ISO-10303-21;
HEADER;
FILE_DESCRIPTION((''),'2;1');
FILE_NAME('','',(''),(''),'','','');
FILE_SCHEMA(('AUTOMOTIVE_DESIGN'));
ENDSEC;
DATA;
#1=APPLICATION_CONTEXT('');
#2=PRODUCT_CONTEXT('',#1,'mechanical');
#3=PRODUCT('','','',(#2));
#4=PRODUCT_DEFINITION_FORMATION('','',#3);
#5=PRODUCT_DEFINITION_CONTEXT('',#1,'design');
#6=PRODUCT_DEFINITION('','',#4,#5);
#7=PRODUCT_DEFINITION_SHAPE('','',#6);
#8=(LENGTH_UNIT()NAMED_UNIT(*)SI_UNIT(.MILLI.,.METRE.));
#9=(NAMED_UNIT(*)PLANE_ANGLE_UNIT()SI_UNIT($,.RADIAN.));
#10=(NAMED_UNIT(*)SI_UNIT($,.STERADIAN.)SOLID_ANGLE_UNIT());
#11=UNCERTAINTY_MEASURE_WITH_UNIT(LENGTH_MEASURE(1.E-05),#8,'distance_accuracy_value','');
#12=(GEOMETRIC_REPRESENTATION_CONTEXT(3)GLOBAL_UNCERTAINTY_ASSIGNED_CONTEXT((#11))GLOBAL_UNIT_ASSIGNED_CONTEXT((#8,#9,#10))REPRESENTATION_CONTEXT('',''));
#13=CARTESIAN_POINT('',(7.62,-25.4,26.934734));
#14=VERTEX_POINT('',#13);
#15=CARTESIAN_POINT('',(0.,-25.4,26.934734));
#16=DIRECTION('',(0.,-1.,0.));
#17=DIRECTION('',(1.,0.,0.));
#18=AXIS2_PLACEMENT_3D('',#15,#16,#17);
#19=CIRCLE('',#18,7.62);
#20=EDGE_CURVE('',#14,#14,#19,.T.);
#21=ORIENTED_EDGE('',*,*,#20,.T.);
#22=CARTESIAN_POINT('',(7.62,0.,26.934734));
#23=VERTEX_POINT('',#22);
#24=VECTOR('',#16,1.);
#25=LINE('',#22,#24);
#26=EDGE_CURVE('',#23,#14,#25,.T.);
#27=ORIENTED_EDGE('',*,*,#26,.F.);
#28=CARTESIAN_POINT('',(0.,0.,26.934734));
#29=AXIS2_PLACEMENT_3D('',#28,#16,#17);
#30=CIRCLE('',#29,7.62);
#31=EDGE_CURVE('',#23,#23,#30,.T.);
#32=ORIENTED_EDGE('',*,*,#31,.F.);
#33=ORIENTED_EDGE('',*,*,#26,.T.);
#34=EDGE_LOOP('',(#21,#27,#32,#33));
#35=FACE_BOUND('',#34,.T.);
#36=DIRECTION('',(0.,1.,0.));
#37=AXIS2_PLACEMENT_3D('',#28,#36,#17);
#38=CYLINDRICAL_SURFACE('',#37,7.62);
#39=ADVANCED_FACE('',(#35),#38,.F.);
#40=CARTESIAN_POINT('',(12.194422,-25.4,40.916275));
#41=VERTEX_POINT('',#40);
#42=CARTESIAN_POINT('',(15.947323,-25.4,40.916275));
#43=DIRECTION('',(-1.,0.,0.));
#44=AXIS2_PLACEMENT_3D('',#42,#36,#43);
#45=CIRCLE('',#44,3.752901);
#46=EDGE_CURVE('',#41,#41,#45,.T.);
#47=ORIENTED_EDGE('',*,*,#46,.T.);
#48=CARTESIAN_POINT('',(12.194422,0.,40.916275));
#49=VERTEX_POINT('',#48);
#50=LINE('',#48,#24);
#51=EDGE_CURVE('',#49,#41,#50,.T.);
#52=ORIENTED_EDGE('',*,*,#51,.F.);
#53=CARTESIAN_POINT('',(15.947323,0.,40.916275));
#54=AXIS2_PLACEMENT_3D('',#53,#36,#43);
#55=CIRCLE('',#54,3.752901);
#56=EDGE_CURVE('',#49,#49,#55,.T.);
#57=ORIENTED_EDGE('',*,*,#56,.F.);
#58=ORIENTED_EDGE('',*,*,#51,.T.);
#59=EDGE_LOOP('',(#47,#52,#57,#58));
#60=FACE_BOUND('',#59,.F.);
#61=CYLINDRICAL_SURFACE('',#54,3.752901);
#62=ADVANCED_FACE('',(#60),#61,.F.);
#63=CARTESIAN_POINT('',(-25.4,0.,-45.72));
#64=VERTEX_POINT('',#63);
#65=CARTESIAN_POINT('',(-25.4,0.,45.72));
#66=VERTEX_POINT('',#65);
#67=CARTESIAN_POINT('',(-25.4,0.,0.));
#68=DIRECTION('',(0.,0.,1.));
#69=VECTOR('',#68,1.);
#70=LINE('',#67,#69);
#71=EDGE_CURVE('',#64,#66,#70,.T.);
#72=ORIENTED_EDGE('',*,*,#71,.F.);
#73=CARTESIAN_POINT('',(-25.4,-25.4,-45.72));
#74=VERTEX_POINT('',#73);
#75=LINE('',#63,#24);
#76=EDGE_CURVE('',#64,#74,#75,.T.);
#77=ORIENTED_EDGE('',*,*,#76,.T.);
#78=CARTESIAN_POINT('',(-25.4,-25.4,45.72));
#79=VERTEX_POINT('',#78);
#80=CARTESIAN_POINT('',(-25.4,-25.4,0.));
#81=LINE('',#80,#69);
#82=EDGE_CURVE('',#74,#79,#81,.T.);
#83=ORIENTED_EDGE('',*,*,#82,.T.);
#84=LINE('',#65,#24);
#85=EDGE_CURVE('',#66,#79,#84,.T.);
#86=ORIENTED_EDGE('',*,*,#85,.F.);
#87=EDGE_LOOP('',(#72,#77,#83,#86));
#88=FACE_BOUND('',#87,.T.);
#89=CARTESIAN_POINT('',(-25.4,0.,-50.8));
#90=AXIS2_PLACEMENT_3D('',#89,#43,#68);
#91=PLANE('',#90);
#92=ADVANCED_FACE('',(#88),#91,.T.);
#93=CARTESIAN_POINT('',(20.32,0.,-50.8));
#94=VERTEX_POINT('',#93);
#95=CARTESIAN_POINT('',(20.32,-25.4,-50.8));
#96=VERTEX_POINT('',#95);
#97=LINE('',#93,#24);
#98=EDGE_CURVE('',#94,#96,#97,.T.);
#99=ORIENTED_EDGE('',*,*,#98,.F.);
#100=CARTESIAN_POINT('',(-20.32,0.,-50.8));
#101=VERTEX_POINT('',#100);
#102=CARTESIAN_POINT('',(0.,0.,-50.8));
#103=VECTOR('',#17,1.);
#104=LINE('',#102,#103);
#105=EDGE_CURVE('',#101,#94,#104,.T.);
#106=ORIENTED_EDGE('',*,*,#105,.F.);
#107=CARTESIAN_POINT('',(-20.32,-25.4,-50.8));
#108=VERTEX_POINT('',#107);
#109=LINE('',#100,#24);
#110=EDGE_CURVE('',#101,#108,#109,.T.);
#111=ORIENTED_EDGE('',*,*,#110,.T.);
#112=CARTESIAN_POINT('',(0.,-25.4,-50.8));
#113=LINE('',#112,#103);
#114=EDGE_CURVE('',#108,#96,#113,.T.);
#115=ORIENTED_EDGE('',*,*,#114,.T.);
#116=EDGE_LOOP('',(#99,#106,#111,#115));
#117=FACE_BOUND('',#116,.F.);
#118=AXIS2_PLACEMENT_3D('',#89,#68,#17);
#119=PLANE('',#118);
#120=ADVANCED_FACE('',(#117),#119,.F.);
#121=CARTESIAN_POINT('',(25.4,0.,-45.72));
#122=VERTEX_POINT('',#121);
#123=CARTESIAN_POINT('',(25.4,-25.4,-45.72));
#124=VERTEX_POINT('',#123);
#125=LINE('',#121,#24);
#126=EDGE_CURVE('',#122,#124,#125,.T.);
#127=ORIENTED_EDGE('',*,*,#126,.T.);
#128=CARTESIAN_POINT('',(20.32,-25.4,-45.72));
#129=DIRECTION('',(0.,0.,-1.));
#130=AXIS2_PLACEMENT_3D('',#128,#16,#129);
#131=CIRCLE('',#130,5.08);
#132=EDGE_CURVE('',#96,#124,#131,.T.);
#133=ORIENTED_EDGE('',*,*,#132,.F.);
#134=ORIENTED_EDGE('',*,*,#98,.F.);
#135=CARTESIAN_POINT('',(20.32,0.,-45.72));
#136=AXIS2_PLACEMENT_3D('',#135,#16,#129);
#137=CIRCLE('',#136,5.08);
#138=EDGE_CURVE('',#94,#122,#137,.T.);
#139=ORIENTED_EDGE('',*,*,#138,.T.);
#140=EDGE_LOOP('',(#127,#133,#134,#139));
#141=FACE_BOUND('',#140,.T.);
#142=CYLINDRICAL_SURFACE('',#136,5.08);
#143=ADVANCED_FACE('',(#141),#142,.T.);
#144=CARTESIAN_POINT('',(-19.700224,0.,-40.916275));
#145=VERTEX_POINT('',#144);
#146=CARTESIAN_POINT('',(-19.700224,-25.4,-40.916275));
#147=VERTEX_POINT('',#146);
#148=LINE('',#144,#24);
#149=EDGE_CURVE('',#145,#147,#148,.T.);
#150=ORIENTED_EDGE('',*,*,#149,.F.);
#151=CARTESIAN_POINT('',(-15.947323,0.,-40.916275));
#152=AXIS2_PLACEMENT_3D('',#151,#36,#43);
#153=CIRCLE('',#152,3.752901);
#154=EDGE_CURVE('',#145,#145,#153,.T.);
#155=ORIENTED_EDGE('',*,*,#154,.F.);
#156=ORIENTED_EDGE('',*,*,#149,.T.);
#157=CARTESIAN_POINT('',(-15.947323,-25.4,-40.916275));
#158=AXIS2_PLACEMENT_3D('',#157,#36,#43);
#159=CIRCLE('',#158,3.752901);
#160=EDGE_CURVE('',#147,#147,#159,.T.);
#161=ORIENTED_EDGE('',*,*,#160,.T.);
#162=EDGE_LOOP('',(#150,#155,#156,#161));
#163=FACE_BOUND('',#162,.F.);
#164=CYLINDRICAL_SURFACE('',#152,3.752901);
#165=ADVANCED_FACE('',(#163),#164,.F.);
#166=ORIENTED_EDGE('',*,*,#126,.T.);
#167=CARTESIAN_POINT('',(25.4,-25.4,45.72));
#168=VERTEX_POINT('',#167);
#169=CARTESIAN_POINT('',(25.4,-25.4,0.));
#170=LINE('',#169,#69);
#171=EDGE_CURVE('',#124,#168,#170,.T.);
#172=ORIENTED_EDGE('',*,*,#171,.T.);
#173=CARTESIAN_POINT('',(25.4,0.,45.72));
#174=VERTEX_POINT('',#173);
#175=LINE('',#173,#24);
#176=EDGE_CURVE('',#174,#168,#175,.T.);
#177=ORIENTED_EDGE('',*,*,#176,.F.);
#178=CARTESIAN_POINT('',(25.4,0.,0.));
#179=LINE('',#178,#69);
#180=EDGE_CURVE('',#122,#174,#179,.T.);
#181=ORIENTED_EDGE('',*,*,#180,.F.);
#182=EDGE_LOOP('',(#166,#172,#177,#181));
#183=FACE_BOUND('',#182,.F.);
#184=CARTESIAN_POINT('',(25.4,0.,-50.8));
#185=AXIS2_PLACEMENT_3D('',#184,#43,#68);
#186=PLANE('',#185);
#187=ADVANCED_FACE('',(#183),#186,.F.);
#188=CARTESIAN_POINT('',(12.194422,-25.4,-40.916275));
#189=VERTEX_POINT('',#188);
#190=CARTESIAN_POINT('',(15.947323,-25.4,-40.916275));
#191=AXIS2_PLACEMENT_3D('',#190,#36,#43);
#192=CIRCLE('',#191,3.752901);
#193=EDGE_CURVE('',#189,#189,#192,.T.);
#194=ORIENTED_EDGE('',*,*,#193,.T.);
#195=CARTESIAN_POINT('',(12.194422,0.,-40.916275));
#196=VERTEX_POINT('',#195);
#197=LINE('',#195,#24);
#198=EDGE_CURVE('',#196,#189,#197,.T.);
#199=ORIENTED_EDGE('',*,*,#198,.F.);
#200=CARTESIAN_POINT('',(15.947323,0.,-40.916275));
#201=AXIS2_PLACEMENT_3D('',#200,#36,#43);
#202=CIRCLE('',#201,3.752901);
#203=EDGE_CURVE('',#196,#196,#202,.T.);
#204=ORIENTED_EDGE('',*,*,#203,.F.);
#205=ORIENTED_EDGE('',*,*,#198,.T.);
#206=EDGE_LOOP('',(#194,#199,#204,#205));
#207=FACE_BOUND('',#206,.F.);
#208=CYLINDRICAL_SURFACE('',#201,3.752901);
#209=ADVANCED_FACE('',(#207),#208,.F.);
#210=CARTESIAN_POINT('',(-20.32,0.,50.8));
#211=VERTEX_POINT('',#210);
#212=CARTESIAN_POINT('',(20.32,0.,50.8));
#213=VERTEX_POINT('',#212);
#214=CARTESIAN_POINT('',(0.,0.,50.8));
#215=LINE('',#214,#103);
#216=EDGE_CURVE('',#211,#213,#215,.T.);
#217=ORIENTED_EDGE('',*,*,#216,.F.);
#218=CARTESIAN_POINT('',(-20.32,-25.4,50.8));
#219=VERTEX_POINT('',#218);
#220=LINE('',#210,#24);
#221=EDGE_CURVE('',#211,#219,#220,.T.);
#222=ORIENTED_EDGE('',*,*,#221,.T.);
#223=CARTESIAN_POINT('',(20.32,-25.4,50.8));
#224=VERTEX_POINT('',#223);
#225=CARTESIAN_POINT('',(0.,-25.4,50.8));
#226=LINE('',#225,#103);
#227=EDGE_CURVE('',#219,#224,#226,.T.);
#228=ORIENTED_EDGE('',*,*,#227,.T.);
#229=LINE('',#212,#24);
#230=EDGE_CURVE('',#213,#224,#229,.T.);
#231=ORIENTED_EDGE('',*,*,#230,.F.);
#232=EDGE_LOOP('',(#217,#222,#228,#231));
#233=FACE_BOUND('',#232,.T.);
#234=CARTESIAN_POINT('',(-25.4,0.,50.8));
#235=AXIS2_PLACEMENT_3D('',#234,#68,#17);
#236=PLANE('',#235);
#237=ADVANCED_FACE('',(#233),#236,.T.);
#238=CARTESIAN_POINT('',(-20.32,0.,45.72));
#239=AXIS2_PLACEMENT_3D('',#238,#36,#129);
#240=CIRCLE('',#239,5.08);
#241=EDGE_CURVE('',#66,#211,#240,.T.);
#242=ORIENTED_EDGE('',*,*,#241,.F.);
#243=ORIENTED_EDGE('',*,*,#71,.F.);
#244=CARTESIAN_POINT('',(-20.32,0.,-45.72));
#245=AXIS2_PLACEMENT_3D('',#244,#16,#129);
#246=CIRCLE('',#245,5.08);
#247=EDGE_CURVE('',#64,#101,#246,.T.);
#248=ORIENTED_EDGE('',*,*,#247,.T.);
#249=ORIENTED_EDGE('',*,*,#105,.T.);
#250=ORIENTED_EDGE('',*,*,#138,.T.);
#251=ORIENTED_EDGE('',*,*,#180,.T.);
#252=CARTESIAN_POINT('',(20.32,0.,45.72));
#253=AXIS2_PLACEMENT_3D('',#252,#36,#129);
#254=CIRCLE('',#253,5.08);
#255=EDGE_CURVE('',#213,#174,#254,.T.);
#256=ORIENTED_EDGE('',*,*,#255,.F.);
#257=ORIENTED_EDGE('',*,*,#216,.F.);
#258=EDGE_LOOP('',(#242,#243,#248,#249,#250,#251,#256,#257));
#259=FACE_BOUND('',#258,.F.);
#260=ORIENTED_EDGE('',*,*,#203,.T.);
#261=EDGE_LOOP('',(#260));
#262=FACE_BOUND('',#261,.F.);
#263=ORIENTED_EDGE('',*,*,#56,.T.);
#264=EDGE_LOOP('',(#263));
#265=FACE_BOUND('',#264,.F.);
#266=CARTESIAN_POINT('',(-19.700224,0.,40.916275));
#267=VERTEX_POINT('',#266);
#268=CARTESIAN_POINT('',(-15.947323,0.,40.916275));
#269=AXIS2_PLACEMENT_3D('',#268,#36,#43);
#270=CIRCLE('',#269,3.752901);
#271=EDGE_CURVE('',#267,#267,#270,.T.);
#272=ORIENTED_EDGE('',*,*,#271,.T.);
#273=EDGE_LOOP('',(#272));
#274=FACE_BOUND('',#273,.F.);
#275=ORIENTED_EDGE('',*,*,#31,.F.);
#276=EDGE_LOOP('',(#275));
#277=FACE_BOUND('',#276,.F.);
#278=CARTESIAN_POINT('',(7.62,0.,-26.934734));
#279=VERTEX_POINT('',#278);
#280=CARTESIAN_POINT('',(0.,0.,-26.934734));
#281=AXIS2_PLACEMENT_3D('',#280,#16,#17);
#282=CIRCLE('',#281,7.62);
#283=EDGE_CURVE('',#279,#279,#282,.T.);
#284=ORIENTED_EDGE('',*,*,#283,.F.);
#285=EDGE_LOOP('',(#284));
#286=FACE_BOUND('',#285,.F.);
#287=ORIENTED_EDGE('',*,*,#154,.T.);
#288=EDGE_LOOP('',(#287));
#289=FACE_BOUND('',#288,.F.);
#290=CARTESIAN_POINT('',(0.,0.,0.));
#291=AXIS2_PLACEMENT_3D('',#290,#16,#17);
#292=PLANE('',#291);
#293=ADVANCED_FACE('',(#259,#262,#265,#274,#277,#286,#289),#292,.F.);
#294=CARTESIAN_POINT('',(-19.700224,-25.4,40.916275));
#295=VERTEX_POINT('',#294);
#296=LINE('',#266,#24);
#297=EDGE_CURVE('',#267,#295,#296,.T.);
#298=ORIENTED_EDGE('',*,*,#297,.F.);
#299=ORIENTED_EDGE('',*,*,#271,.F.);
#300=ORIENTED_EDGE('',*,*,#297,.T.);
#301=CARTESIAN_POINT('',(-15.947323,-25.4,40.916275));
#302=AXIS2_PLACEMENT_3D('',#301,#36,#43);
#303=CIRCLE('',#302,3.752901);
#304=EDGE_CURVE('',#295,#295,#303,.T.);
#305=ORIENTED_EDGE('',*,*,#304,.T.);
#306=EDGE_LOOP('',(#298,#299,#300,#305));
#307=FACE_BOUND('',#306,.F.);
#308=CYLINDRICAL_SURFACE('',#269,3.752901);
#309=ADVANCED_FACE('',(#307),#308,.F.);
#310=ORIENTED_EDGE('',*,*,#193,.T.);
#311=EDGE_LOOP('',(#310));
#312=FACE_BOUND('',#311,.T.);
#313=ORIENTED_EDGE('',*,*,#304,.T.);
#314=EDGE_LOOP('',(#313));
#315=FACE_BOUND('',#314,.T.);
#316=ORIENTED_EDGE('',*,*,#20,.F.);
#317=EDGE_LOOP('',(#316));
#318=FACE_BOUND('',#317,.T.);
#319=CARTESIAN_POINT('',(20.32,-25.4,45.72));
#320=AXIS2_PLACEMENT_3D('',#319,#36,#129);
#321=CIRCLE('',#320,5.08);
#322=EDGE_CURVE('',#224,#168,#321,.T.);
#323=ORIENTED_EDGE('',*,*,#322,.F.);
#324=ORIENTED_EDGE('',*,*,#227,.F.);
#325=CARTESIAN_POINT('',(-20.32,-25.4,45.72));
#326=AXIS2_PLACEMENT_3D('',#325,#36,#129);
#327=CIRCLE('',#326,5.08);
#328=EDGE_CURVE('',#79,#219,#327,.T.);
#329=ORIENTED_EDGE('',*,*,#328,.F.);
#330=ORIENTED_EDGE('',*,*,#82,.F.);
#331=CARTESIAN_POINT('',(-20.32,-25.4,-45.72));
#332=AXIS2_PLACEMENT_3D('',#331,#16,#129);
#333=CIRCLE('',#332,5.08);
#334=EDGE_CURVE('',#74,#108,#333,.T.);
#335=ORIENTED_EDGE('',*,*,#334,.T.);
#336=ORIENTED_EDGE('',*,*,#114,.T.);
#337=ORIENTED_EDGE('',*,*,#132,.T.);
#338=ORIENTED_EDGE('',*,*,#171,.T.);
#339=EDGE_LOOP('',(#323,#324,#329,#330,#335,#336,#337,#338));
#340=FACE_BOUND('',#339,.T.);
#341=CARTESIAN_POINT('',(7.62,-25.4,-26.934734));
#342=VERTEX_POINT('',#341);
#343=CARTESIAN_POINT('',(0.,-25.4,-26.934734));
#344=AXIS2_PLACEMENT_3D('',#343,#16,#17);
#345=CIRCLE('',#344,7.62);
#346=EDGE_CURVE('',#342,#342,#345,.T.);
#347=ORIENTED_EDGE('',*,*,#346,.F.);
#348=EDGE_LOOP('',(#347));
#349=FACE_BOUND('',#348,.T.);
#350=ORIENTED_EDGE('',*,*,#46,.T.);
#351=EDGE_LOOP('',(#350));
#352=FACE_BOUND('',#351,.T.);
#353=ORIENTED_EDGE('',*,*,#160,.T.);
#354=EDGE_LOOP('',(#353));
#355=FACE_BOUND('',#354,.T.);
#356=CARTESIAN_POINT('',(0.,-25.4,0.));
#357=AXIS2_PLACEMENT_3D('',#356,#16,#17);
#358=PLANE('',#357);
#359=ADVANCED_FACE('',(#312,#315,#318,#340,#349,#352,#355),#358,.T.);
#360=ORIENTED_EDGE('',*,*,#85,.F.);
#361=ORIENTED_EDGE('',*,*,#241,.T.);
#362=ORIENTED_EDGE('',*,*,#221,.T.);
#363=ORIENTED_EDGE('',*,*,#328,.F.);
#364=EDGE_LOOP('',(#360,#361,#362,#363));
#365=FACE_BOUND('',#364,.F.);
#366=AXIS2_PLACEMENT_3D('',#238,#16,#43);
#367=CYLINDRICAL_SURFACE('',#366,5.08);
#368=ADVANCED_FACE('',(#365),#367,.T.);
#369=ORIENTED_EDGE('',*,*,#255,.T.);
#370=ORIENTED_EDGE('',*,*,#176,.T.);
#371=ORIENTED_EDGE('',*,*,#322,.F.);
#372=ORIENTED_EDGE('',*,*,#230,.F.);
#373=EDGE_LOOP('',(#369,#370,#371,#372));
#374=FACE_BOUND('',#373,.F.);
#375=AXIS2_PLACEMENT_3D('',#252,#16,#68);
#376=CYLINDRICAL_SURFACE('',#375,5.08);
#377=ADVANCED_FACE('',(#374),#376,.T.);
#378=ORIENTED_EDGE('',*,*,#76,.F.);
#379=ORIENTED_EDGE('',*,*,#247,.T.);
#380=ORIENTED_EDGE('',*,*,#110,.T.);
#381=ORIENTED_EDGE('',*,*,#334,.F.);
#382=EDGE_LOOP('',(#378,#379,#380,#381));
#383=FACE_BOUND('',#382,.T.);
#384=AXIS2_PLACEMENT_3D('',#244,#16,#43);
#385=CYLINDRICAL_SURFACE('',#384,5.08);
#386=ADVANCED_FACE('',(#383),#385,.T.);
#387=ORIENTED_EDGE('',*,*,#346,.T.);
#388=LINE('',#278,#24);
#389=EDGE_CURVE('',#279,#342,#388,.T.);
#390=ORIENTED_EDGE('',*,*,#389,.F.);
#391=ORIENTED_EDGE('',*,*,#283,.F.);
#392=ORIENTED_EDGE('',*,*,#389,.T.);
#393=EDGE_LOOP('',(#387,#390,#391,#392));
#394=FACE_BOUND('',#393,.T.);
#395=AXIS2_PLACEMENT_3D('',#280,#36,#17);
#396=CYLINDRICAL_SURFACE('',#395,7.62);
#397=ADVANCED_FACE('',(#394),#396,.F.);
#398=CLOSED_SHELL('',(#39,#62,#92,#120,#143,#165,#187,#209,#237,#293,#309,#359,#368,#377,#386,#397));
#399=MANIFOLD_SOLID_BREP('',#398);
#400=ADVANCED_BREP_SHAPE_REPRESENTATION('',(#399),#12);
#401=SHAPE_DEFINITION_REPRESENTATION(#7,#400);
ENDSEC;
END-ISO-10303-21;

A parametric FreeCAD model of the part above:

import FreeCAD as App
import Part
import Sketcher

V = App.Vector
Q = App.Units.Quantity


def edges_at(feature, points):
    """Names of the edges that pass closest to the given points."""
    edges = feature.Shape.Edges
    near = lambda p: min(range(len(edges)), key=lambda i: edges[i].distToShape(Part.Vertex(*p))[0])
    return sorted({f"Edge{near(p) + 1}" for p in points})

doc = App.newDocument("Part")
body = doc.addObject("PartDesign::Body", "Body")

# Sketch on XZ plane
sketch1 = body.newObject("Sketcher::SketchObject", "Sketch")
sketch1.AttachmentSupport = (doc.getObject("XZ_Plane"), [""])
sketch1.MapMode = "FlatFace"
sketch1.addGeometry([
    Part.LineSegment(V(-25, 51, 0), V(-25, -51, 0)),  # 0
    Part.LineSegment(V(-25, -51, 0), V(25, -51, 0)),  # 1
    Part.LineSegment(V(25, -51, 0), V(25, 51, 0)),  # 2
    Part.LineSegment(V(25, 51, 0), V(-25, 51, 0)),  # 3
    Part.Circle(V(0, -27, 0), V(0, 0, 1), 8),  # 4
    Part.Circle(V(0, 27, 0), V(0, 0, 1), 8),  # 5
], False)
sketch1.addConstraint([
    Sketcher.Constraint("Coincident", 0, 2, 1, 1),
    Sketcher.Constraint("Coincident", 1, 2, 2, 1),
    Sketcher.Constraint("Coincident", 2, 2, 3, 1),
    Sketcher.Constraint("Coincident", 3, 2, 0, 1),
    Sketcher.Constraint("Vertical", 0),
    Sketcher.Constraint("Horizontal", 1),
    Sketcher.Constraint("Vertical", 2),
    Sketcher.Constraint("Horizontal", 3),
    Sketcher.Constraint("Equal", 4, 5),
    Sketcher.Constraint("Symmetric", 4, 3, 5, 3, -1, 1),
    Sketcher.Constraint("Symmetric", 0, 2, 2, 2, -1, 1),
    Sketcher.Constraint("PointOnObject", 4, 3, -2),
    Sketcher.Constraint("Diameter", 4, Q("0.6 in")),
    Sketcher.Constraint("DistanceX", 1, 1, 1, 2, Q("2 in")),
    Sketcher.Constraint("DistanceY", 0, 2, 0, 1, Q("4 in")),
    Sketcher.Constraint("DistanceY", 4, 3, -1, 1, Q("26.934734 mm")),
])
pad1 = body.newObject("PartDesign::Pad", "Pad")
pad1.Profile = sketch1
pad1.Length = Q("1 in")
doc.recompute()

fillet = body.newObject("PartDesign::Fillet", "Fillet")
fillet.Base = (pad1, edges_at(pad1, [
    (25.4, -12.7, -50.8),
    (25.4, -12.7, 50.8),
    (-25.4, -12.7, 50.8),
    (-25.4, -12.7, -50.8),
]))
fillet.Radius = Q("0.2 in")

# Sketch on XZ plane
sketch2 = body.newObject("Sketcher::SketchObject", "Sketch001")
sketch2.AttachmentSupport = (doc.getObject("XZ_Plane"), [""])
sketch2.MapMode = "FlatFace"
sketch2.addGeometry([
    Part.Circle(V(15.9, 40.9, 0), V(0, 0, 1), 3.8),
    Part.Circle(V(-15.9, 40.9, 0), V(0, 0, 1), 3.8),
    Part.Circle(V(-15.9, -40.9, 0), V(0, 0, 1), 3.8),
    Part.Circle(V(15.9, -40.9, 0), V(0, 0, 1), 3.8),
], False)
sketch2.addConstraint([
    Sketcher.Constraint("Equal", 0, 1),
    Sketcher.Constraint("Equal", 1, 2),
    Sketcher.Constraint("Equal", 2, 3),
    Sketcher.Constraint("Symmetric", 0, 3, 2, 3, -1, 1),
    Sketcher.Constraint("Symmetric", 1, 3, 3, 3, -1, 1),
    Sketcher.Constraint("Symmetric", 0, 3, 1, 3, -2),
    Sketcher.Constraint("Diameter", 0, Q("7.505802 mm")),
    Sketcher.Constraint("DistanceY", 2, 3, 1, 3, Q("81.83255 mm")),
    Sketcher.Constraint("DistanceX", -1, 1, 0, 3, Q("15.947323 mm")),
])
pocket1 = body.newObject("PartDesign::Pocket", "Pocket")
pocket1.Profile = sketch2
pocket1.Length = Q("1 in")
pocket1.Reversed = True

doc.recompute()
